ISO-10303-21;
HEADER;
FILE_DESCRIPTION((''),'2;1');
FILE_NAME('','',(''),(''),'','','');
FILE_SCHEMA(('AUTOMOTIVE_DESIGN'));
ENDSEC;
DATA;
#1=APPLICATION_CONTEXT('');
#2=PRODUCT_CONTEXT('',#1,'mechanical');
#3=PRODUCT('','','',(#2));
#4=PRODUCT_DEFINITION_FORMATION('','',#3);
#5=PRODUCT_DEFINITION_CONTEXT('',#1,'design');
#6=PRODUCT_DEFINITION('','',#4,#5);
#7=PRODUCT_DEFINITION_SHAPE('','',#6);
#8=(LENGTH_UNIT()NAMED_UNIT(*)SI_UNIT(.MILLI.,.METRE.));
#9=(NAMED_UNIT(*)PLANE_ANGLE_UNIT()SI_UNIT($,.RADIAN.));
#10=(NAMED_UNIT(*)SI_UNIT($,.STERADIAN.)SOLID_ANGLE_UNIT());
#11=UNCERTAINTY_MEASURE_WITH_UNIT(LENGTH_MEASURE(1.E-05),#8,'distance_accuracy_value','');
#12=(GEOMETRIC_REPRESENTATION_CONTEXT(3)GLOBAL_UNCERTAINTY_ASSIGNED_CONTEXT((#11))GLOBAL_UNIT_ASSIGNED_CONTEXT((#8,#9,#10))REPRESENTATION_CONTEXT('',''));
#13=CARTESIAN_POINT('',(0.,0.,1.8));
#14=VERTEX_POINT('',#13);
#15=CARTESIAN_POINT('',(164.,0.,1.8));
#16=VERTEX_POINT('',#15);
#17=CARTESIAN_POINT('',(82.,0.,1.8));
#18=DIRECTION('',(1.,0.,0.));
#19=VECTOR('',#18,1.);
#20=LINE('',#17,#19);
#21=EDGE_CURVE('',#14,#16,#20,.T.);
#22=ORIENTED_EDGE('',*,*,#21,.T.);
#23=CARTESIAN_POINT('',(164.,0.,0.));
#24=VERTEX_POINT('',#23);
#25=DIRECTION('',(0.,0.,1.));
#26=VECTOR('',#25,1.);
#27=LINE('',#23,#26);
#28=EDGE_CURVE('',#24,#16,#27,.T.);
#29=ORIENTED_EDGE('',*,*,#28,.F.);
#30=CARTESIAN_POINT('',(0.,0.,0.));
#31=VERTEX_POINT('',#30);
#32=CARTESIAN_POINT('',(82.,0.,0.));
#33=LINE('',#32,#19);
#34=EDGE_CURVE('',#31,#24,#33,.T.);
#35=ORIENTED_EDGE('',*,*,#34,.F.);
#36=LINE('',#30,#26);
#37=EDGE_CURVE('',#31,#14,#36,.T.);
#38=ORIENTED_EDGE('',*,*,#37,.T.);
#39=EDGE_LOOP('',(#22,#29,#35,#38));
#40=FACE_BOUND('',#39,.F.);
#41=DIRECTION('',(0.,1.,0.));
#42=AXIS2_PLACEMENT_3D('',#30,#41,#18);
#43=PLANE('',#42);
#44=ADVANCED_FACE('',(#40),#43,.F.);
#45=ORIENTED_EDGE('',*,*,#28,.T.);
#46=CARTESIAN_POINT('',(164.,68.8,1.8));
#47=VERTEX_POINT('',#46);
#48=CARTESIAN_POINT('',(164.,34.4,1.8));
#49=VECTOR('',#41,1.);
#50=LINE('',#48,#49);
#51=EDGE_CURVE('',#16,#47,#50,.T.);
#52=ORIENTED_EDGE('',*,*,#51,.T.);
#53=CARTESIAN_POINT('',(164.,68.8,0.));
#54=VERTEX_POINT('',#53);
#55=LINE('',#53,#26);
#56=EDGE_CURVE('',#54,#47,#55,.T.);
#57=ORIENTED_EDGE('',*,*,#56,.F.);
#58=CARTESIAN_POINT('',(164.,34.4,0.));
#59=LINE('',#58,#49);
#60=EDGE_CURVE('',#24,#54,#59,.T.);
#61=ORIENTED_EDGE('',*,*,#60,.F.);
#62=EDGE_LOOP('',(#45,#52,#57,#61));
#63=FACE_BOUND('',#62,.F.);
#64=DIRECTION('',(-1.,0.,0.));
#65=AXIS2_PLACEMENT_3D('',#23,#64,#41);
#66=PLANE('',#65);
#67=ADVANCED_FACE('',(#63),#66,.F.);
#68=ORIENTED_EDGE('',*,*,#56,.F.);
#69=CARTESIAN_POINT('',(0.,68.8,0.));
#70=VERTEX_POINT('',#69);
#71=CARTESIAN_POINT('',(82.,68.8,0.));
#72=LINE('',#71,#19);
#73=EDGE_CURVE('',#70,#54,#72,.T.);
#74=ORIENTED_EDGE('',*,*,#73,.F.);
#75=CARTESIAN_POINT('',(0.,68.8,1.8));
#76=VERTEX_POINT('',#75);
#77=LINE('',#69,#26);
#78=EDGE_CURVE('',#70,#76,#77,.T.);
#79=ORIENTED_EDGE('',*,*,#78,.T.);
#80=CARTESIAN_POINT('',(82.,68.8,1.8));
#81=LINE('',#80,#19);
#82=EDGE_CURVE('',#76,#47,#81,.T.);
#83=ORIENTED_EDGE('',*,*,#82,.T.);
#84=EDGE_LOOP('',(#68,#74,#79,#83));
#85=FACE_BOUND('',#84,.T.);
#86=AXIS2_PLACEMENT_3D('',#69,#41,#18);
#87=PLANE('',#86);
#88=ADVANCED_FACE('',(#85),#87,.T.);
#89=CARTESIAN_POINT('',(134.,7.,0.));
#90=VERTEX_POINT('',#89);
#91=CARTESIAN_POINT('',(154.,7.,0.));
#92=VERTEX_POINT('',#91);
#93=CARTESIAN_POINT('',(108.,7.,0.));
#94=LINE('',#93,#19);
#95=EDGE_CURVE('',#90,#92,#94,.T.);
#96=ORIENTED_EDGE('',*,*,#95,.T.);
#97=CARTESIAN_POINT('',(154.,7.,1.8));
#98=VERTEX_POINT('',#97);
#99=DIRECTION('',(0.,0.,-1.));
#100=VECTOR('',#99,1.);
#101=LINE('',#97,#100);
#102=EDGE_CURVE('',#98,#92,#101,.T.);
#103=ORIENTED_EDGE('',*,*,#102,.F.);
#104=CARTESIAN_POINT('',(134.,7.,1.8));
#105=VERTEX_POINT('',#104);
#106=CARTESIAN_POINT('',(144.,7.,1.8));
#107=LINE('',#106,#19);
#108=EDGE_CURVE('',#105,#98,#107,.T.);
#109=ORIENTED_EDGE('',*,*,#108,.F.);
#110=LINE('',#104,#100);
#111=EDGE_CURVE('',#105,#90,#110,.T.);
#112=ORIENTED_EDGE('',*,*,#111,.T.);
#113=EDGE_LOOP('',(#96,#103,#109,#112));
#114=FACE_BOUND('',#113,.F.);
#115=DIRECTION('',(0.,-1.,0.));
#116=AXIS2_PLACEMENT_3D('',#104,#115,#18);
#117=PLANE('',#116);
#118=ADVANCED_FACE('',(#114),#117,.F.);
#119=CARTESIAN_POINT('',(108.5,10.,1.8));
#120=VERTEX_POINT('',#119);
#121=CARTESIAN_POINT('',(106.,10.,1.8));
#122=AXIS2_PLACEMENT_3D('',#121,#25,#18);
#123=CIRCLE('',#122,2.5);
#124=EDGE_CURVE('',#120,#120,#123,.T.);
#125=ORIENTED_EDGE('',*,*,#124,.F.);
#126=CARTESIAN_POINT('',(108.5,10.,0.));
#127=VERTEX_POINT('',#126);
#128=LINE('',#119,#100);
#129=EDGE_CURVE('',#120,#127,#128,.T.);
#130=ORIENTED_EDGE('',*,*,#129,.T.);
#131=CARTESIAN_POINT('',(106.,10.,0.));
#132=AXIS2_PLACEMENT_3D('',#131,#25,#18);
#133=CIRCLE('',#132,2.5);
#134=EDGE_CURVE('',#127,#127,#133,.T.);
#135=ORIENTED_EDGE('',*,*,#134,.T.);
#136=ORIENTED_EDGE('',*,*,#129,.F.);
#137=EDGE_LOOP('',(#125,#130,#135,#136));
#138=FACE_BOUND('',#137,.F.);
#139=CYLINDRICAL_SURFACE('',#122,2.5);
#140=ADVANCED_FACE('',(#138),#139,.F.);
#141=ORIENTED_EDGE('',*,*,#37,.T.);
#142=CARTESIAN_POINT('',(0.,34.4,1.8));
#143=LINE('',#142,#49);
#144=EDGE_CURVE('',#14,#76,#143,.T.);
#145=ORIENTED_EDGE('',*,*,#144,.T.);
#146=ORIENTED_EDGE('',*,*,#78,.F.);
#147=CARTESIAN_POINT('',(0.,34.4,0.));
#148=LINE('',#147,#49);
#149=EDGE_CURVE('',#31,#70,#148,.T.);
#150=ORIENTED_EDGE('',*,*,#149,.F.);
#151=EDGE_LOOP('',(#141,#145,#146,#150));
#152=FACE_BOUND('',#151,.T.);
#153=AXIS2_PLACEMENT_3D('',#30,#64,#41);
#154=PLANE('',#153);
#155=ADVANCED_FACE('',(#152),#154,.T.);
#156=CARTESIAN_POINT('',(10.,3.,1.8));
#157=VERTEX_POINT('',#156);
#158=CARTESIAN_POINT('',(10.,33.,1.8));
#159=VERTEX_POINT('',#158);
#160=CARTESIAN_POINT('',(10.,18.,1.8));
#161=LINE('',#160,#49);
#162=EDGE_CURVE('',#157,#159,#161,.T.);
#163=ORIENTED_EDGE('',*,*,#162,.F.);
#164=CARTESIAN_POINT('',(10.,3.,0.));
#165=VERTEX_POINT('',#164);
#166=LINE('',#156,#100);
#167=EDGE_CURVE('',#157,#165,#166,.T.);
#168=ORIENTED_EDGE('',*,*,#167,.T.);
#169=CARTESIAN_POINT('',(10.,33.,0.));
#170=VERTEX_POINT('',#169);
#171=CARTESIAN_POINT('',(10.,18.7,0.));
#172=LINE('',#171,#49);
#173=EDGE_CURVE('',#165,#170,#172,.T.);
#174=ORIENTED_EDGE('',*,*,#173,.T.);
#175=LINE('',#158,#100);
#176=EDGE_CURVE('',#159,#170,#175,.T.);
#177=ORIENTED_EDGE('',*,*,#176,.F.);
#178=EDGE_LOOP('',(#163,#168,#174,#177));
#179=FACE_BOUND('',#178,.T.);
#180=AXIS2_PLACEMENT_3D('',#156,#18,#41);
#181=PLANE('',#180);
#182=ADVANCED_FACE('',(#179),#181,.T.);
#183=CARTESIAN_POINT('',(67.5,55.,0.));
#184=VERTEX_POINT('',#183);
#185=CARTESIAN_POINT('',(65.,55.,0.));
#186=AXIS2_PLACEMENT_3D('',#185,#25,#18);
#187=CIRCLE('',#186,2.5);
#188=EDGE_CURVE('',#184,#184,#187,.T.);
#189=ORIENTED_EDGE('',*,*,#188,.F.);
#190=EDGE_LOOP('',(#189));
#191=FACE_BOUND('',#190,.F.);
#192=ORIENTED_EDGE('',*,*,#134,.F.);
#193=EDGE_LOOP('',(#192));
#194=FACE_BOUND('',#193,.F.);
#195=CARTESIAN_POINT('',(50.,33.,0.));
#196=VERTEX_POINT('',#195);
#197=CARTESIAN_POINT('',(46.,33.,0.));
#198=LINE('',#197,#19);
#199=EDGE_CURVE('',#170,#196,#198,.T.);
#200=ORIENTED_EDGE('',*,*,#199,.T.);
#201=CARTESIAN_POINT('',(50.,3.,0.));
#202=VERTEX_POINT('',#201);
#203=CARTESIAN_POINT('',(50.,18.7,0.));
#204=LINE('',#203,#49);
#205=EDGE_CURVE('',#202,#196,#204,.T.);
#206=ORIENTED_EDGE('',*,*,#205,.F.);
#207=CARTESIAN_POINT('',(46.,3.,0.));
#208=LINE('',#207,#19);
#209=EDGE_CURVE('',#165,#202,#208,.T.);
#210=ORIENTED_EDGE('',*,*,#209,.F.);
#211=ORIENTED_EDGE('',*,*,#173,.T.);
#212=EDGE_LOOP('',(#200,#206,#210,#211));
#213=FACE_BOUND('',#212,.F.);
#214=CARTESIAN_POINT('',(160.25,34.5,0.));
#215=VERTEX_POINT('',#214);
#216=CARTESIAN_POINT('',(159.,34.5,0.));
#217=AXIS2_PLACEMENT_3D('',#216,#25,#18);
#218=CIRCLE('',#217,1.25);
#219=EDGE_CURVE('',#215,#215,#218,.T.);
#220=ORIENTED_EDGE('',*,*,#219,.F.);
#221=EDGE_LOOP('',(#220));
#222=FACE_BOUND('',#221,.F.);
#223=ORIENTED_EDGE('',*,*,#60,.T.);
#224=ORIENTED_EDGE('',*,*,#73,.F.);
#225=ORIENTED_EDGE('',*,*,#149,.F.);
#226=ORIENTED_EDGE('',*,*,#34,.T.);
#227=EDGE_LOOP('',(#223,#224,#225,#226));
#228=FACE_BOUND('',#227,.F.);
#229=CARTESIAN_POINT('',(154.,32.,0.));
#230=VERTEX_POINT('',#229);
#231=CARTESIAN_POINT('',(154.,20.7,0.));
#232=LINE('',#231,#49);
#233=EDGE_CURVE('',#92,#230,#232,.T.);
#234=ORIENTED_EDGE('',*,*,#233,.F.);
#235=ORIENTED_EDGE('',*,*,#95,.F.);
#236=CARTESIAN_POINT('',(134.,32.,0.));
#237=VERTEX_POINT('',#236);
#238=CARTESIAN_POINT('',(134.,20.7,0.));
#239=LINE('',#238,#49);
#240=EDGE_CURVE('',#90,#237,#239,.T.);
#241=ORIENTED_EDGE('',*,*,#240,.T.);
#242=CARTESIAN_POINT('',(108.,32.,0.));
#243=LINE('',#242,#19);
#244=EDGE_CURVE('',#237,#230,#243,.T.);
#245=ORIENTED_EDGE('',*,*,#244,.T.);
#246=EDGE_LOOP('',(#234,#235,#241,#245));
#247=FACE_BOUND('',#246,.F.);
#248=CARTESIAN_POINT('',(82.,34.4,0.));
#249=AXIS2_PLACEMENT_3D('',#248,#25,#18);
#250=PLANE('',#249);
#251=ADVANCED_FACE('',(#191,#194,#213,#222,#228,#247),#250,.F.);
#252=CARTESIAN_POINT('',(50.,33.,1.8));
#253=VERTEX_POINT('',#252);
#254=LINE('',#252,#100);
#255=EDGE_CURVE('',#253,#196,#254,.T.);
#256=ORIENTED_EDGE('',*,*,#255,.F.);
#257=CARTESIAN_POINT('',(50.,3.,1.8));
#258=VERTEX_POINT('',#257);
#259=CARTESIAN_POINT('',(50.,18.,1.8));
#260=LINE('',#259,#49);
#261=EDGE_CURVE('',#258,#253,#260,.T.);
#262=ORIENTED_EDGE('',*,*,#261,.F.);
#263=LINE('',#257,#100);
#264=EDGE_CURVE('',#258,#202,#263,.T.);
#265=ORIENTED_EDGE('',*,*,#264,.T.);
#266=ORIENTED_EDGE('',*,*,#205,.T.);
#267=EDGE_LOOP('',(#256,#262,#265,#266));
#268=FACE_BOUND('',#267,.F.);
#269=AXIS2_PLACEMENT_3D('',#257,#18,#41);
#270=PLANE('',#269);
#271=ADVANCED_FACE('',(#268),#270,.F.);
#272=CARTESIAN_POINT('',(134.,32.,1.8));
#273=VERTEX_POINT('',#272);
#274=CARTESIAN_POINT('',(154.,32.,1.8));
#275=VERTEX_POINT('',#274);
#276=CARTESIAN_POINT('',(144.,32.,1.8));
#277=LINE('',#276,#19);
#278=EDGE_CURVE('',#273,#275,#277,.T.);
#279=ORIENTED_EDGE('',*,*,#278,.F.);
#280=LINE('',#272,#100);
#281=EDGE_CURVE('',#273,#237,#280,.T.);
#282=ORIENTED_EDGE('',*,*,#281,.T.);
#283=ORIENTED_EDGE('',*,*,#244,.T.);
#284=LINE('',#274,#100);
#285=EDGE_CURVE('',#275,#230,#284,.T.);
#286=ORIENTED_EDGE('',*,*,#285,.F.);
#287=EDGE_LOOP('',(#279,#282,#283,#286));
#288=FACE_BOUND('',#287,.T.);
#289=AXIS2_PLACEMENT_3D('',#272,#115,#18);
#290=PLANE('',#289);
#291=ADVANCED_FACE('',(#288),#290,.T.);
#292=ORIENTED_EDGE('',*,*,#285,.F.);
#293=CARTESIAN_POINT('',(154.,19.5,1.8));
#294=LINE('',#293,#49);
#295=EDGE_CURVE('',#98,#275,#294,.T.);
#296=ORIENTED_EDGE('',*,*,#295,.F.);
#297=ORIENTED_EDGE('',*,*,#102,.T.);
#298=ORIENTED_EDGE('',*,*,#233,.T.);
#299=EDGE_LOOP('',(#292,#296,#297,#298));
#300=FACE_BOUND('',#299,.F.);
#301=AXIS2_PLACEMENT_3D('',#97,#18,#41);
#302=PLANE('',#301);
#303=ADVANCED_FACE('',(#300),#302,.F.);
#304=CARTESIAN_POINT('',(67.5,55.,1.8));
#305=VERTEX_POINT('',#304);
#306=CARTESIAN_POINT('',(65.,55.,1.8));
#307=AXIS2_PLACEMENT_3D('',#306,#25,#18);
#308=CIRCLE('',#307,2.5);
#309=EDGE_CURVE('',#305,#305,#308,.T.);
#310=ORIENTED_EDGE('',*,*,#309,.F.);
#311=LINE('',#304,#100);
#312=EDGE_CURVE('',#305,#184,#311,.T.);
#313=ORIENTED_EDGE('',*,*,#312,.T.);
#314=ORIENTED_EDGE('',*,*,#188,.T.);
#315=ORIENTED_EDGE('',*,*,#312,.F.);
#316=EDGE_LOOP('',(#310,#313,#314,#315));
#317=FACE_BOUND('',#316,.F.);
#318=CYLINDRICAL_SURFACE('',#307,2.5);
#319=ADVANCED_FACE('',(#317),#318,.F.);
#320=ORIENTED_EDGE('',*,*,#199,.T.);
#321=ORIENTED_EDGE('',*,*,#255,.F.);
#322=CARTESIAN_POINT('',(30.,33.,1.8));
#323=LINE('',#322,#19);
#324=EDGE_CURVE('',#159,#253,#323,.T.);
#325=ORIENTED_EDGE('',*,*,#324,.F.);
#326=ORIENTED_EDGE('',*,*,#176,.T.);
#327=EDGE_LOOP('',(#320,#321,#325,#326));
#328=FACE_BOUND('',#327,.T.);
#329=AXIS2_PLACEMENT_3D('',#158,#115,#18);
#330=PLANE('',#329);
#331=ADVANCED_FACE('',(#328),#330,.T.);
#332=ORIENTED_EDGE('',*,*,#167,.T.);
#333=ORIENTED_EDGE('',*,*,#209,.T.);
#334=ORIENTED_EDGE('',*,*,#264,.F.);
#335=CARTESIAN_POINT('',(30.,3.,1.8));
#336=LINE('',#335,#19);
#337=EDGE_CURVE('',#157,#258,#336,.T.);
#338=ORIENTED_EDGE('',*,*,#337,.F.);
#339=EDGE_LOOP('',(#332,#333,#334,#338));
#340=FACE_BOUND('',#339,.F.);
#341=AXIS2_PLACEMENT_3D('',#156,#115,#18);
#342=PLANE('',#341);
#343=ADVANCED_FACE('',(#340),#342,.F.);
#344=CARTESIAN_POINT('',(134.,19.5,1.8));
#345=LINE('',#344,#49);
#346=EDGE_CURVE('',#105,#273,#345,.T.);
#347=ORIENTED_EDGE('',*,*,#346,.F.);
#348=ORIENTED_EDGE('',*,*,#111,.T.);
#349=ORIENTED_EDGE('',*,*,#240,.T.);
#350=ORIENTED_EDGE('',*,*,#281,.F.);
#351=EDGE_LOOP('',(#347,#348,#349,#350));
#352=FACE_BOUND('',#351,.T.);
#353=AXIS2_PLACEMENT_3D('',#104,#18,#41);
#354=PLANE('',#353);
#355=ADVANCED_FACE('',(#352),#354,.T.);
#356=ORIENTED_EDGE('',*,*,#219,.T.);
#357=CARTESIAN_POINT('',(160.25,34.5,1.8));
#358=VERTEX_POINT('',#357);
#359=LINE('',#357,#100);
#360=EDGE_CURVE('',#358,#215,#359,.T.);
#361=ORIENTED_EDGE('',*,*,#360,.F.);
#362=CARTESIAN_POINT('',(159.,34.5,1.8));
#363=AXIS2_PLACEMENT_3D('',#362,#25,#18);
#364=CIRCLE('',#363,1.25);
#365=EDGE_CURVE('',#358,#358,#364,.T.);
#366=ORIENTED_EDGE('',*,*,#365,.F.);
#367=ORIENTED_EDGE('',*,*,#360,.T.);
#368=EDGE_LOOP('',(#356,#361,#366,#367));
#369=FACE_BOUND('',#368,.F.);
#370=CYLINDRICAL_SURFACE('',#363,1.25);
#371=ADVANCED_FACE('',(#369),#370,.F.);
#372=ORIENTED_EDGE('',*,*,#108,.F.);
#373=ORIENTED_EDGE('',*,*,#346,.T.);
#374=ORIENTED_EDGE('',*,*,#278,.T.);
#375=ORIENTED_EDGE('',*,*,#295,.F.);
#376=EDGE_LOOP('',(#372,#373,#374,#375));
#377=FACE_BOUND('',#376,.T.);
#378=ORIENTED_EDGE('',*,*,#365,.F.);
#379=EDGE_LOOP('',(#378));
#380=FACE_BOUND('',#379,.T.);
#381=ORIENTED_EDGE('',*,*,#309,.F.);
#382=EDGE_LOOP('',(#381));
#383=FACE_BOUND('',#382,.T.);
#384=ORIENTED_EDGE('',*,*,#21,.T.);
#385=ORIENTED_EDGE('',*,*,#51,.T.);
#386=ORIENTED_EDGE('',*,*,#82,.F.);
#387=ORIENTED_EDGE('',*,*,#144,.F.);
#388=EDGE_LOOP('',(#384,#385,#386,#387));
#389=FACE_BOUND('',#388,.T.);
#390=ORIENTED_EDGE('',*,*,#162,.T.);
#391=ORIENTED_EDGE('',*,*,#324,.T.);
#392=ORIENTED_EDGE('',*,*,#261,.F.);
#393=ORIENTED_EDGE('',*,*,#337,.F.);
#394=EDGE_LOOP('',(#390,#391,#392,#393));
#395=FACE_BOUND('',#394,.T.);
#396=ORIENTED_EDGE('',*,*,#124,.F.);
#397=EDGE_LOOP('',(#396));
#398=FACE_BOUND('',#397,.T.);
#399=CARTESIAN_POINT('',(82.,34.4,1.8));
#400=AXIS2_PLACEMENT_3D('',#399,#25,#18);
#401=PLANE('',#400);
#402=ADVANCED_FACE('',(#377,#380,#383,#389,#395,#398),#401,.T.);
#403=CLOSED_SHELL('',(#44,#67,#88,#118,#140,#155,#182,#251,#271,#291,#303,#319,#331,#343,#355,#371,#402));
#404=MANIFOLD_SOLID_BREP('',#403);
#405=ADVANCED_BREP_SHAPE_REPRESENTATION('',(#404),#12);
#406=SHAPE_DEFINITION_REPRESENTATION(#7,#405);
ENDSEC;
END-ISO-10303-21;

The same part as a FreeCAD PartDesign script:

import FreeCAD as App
import Part
import Sketcher

V = App.Vector


def add_polygon(sketch, points):
    """Adds a closed chain of lines whose ends are joined by coincident constraints."""
    first, n = sketch.GeometryCount, len(points)
    for a, b in zip(points, points[1:] + points[:1]):
        sketch.addGeometry(Part.LineSegment(App.Vector(*a, 0), App.Vector(*b, 0)), False)
    for i in range(n):
        sketch.addConstraint(Sketcher.Constraint("Coincident", first + i, 2, first + (i + 1) % n, 1))

doc = App.newDocument("Part")
body = doc.addObject("PartDesign::Body", "Body")

# Sketch on XY plane
sketch1 = doc.addObject("Sketcher::SketchObject", "Sketch")
body.addObject(sketch1)
sketch1.AttachmentSupport = (doc.XY_Plane, [""])
sketch1.MapMode = "FlatFace"
add_polygon(sketch1, [(0, 69), (0, 0), (164, 0), (164, 69)])  # lines 0-3
sketch1.addConstraint([
    Sketcher.Constraint("Vertical", 0),
    Sketcher.Constraint("Horizontal", 1),
    Sketcher.Constraint("Vertical", 2),
    Sketcher.Constraint("Horizontal", 3),
    Sketcher.Constraint("Coincident", 0, 2, -1, 1),
    Sketcher.Constraint("DistanceX", 1, 1, 1, 2, 164.0),
    Sketcher.Constraint("DistanceY", 0, 2, 0, 1, 68.8),
])
pad1 = doc.addObject("PartDesign::Pad", "Pad")
body.addObject(pad1)
pad1.Profile = sketch1
pad1.Length = 1.8

# Sketch on XY plane
sketch2 = doc.addObject("Sketcher::SketchObject", "Sketch001")
body.addObject(sketch2)
sketch2.AttachmentSupport = (doc.XY_Plane, [""])
sketch2.MapMode = "FlatFace"
sketch2.AttachmentOffset = App.Placement(V(0, 0, 1.8), App.Rotation())
sketch2.addGeometry(Part.Circle(V(65, 55, 0), V(0, 0, 1), 2.5), False)  # 0
sketch2.addGeometry(Part.Circle(V(106, 10, 0), V(0, 0, 1), 2.5), False)  # 1
sketch2.addGeometry(Part.Circle(V(159, 34.5, 0), V(0, 0, 1), 1.2), False)  # 2
add_polygon(sketch2, [(10, 33), (10, 3), (50, 3), (50, 33)])  # lines 3-6
add_polygon(sketch2, [(134, 32), (134, 7), (154, 7), (154, 32)])  # lines 7-10
sketch2.addConstraint([
    Sketcher.Constraint("Vertical", 3),
    Sketcher.Constraint("Horizontal", 4),
    Sketcher.Constraint("Vertical", 5),
    Sketcher.Constraint("Horizontal", 6),
    Sketcher.Constraint("Vertical", 7),
    Sketcher.Constraint("Horizontal", 8),
    Sketcher.Constraint("Vertical", 9),
    Sketcher.Constraint("Horizontal", 10),
    Sketcher.Constraint("Equal", 0, 1),
    Sketcher.Constraint("Diameter", 0, 5.0),
    Sketcher.Constraint("Diameter", 2, 2.5),
    Sketcher.Constraint("DistanceX", 4, 1, 4, 2, 40.0),
    Sketcher.Constraint("DistanceX", 8, 1, 8, 2, 20.0),
    Sketcher.Constraint("DistanceY", 3, 2, 3, 1, 30.0),
    Sketcher.Constraint("DistanceY", 7, 2, 7, 1, 25.0),
    Sketcher.Constraint("DistanceX", -1, 1, 0, 3, 65.0),
    Sketcher.Constraint("DistanceY", -1, 1, 0, 3, 55.0),
    Sketcher.Constraint("DistanceX", -1, 1, 1, 3, 106.0),
    Sketcher.Constraint("DistanceY", -1, 1, 1, 3, 10.0),
    Sketcher.Constraint("DistanceX", -1, 1, 2, 3, 159.0),
    Sketcher.Constraint("DistanceX", -1, 1, 3, 2, 10.0),
    Sketcher.Constraint("DistanceY", -1, 1, 3, 2, 3.0),
    Sketcher.Constraint("DistanceX", -1, 1, 7, 2, 134.0),
    Sketcher.Constraint("DistanceY", -1, 1, 7, 2, 7.0),
    Sketcher.Constraint("DistanceY", -1, 1, 2, 3, 34.5),
])
pocket1 = doc.addObject("PartDesign::Pocket", "Pocket")
body.addObject(pocket1)
pocket1.Profile = sketch2
pocket1.Length = 5

doc.recompute()
